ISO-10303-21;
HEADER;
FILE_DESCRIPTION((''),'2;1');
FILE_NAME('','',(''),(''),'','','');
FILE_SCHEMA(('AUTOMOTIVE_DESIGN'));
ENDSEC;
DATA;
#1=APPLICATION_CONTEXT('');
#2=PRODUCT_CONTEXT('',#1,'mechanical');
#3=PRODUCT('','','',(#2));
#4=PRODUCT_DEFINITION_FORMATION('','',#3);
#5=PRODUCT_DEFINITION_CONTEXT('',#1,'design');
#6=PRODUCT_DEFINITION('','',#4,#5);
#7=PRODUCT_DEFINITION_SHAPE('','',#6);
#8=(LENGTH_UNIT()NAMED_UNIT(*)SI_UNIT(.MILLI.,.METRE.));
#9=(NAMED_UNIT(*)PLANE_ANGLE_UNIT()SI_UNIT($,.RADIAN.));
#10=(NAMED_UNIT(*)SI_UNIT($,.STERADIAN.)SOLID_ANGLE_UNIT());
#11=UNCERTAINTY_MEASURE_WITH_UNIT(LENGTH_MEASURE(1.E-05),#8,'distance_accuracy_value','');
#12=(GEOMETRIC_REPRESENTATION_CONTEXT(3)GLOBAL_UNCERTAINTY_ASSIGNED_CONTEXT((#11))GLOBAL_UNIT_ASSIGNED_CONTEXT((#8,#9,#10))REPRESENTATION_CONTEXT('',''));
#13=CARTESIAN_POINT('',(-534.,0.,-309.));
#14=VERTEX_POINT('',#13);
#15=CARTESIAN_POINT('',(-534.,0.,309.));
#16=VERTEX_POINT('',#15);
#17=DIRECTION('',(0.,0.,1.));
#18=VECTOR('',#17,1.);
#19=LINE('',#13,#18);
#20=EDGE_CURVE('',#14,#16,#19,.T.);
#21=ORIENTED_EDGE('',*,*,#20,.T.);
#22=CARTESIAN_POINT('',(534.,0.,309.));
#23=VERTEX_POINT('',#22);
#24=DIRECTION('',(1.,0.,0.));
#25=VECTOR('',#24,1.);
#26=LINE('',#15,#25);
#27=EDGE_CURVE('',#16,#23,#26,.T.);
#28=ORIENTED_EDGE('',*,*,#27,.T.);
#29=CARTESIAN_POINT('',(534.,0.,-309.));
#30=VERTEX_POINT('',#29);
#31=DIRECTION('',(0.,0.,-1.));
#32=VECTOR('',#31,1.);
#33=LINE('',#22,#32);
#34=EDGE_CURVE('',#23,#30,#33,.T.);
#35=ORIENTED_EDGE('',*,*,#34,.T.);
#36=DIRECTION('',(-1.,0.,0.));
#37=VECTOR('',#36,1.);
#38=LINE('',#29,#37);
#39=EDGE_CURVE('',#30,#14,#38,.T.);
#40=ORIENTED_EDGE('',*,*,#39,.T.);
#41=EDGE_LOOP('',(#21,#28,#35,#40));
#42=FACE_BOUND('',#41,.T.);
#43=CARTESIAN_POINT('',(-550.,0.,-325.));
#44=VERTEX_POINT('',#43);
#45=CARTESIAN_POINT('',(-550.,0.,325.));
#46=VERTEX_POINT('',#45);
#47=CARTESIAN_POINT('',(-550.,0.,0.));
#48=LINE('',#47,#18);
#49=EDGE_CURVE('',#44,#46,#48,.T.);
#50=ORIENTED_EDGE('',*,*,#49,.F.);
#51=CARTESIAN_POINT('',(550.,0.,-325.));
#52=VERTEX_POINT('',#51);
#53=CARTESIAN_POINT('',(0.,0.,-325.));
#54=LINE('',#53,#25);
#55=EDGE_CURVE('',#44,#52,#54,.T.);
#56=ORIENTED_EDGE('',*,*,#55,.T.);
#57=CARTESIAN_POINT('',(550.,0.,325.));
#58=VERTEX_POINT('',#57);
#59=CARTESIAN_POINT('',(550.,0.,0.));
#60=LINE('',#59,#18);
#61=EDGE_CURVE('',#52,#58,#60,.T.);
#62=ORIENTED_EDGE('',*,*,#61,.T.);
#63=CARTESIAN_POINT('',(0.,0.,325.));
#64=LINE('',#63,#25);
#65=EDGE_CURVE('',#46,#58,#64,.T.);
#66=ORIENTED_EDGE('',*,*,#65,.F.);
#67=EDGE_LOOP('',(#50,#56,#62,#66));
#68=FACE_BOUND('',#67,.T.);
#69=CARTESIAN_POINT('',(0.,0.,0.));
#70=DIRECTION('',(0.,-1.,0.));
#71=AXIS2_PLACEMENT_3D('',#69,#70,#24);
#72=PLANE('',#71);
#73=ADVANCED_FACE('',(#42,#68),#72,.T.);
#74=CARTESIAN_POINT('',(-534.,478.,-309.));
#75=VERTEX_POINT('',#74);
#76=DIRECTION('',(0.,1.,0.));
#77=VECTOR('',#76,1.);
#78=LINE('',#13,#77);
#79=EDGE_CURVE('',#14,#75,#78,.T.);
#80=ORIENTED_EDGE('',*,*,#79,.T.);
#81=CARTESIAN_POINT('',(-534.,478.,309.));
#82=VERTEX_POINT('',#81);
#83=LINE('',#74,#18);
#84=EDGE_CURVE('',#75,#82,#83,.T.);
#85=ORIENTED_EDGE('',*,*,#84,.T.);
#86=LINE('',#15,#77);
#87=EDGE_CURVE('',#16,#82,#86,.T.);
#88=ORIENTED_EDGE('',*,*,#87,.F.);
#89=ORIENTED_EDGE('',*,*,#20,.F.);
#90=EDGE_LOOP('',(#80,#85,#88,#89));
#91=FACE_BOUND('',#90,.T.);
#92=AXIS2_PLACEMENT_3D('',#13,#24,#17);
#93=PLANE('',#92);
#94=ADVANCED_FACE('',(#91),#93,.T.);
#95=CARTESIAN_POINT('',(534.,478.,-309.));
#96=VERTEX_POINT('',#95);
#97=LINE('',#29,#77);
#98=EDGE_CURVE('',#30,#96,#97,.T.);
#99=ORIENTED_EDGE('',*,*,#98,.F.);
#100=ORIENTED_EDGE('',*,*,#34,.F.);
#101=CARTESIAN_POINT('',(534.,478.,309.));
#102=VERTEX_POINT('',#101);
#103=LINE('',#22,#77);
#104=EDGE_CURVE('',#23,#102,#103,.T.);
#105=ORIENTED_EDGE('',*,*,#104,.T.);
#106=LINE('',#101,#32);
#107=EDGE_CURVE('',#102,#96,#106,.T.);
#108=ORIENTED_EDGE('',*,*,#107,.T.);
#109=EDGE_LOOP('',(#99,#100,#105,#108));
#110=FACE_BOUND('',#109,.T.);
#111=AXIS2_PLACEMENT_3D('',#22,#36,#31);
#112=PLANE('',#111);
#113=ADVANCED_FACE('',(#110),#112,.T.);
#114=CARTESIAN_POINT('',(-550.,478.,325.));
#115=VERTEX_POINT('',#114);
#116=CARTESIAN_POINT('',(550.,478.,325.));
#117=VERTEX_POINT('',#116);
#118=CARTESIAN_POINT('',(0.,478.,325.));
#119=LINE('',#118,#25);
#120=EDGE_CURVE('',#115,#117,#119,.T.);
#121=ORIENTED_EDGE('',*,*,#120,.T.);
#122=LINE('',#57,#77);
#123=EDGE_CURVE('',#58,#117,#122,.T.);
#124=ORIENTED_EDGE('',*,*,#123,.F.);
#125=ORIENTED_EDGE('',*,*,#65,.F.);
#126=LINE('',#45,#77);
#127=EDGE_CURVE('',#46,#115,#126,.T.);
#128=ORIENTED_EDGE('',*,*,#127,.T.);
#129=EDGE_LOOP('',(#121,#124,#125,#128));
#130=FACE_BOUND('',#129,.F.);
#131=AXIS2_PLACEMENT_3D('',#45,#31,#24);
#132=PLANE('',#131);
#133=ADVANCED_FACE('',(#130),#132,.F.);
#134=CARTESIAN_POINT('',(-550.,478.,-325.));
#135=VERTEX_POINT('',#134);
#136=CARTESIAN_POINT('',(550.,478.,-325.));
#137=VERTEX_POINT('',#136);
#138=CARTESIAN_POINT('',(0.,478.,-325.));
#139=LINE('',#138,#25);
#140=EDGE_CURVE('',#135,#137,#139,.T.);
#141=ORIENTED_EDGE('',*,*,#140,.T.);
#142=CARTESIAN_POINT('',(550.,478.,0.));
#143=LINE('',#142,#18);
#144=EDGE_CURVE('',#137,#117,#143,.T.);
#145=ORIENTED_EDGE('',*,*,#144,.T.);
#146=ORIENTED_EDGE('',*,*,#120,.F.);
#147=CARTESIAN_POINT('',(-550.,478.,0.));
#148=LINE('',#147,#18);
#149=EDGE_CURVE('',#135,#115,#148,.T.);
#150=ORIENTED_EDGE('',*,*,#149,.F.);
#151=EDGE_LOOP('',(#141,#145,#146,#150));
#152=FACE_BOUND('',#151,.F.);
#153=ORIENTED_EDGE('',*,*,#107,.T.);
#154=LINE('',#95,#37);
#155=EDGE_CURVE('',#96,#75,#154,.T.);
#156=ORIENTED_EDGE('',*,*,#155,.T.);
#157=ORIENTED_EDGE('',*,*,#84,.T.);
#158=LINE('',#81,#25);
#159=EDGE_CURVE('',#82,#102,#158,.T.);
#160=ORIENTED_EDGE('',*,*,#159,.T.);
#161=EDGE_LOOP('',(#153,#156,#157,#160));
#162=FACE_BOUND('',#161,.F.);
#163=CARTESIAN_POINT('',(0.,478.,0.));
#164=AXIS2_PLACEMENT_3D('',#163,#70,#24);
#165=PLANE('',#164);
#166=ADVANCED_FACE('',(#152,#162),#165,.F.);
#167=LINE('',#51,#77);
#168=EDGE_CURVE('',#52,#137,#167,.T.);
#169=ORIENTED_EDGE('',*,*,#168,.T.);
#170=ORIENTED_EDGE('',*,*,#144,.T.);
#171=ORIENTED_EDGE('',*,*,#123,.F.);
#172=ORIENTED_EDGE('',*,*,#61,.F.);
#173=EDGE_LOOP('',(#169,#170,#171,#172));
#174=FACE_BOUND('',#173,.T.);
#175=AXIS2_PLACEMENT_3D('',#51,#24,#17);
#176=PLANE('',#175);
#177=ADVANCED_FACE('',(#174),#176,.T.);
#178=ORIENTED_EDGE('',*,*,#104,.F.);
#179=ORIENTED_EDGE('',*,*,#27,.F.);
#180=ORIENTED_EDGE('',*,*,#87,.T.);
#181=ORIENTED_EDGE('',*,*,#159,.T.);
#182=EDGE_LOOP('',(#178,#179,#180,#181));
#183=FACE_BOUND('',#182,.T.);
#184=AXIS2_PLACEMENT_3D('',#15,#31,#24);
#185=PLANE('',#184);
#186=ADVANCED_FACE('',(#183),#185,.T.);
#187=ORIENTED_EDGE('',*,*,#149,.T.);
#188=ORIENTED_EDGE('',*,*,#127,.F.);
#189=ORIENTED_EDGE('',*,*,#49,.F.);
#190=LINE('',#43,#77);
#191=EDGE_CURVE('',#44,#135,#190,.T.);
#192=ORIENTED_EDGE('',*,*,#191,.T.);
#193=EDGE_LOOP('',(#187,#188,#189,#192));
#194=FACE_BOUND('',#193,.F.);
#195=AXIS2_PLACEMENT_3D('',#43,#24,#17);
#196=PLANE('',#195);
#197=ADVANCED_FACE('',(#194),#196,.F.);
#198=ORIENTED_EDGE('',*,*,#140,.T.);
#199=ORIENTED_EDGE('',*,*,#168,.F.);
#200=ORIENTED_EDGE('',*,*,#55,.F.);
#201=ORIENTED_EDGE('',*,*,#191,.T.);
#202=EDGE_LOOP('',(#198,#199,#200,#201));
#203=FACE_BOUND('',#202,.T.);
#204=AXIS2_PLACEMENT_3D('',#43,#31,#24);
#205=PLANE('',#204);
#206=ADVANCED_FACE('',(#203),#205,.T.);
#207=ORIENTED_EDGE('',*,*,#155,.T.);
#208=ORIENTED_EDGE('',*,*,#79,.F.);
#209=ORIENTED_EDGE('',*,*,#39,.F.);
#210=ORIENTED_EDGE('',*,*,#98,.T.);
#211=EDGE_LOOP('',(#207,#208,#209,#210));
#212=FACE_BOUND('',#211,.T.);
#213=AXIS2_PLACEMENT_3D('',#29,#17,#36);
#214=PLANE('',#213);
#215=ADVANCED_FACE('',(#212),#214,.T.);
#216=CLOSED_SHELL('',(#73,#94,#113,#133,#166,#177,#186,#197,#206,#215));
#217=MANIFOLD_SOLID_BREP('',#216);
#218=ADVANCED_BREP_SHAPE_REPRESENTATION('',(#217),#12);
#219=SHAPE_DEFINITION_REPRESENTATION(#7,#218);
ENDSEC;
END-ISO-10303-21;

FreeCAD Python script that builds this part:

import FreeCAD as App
import Part
import Sketcher


def add_polygon(sketch, points):
    """Adds a closed chain of lines whose ends are joined by coincident constraints."""
    first, n = sketch.GeometryCount, len(points)
    for a, b in zip(points, points[1:] + points[:1]):
        sketch.addGeometry(Part.LineSegment(App.Vector(*a, 0), App.Vector(*b, 0)), False)
    for i in range(n):
        sketch.addConstraint(Sketcher.Constraint("Coincident", first + i, 2, first + (i + 1) % n, 1))

doc = App.newDocument("Part")
body = doc.addObject("PartDesign::Body", "Body")

# Sketch on XZ plane
sketch1 = body.newObject("Sketcher::SketchObject", "Sketch")
sketch1.AttachmentSupport = (doc.getObject("XZ_Plane"), [""])
sketch1.MapMode = "FlatFace"
add_polygon(sketch1, [(-550, 325), (-550, -325), (550, -325), (550, 325)])  # lines 0-3
add_polygon(sketch1, [(-534, -309), (-534, 309), (534, 309), (534, -309)])  # lines 4-7
sketch1.addConstraint([
    Sketcher.Constraint("Vertical", 0),
    Sketcher.Constraint("Horizontal", 1),
    Sketcher.Constraint("Vertical", 2),
    Sketcher.Constraint("Horizontal", 3),
    Sketcher.Constraint("Vertical", 4),
    Sketcher.Constraint("Horizontal", 5),
    Sketcher.Constraint("Vertical", 6),
    Sketcher.Constraint("Horizontal", 7),
    Sketcher.Constraint("Symmetric", 0, 2, 2, 2, -1, 1),
    Sketcher.Constraint("Symmetric", 4, 2, 6, 2, -1, 1),
    Sketcher.Constraint("DistanceX", 1, 1, 1, 2, 1100.0),
    Sketcher.Constraint("DistanceX", 5, 1, 5, 2, 1068.0),
    Sketcher.Constraint("DistanceY", 0, 2, 0, 1, 650.0),
    Sketcher.Constraint("DistanceY", 4, 1, 4, 2, 618.0),
])
pad1 = body.newObject("PartDesign::Pad", "Pad")
pad1.Profile = sketch1
pad1.Length = 478
pad1.Reversed = True

doc.recompute()
